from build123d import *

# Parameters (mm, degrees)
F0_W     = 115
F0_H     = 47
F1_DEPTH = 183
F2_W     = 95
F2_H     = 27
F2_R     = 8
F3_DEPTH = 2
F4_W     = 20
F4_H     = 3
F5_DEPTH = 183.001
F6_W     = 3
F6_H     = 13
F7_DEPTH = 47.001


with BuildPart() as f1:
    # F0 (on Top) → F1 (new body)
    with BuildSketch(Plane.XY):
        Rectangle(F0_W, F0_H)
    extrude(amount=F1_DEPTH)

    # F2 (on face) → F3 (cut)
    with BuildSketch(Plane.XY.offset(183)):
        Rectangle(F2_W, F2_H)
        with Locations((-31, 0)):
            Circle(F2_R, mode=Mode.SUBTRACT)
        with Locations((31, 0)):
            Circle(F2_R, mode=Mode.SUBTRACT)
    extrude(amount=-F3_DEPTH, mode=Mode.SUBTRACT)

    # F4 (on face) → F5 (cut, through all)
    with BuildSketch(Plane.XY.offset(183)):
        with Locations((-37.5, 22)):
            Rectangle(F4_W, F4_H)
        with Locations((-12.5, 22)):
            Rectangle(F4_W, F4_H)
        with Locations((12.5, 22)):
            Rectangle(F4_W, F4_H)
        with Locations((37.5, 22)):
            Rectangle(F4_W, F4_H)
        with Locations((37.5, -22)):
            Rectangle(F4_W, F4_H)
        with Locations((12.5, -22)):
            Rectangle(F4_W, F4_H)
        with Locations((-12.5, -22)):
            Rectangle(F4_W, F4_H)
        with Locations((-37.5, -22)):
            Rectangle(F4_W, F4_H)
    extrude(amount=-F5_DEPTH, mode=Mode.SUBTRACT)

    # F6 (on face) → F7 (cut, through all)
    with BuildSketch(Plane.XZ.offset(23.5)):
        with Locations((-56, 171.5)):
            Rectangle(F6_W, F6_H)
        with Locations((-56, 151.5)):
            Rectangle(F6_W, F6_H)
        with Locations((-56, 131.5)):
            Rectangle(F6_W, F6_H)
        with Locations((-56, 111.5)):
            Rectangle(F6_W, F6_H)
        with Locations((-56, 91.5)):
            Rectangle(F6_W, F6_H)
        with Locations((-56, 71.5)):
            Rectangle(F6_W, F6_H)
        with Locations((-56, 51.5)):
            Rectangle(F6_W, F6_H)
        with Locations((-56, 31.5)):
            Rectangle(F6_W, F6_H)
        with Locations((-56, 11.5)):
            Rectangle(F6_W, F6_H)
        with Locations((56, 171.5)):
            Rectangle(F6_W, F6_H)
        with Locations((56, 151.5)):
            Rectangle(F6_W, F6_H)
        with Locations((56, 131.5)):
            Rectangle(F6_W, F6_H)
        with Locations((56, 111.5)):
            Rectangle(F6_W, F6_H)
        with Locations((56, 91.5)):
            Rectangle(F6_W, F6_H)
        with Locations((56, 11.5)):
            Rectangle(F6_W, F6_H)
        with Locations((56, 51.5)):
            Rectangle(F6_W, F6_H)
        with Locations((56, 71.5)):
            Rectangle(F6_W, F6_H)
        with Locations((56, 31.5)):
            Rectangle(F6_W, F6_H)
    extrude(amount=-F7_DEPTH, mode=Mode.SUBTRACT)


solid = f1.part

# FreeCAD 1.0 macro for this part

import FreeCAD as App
import Part
import Sketcher
Q = App.Units.Quantity


def add_polygon(sketch, points):
    """Adds a closed chain of lines whose ends are joined by coincident constraints."""
    first, n = sketch.GeometryCount, len(points)
    for a, b in zip(points, points[1:] + points[:1]):
        sketch.addGeometry(Part.LineSegment(App.Vector(*a, 0), App.Vector(*b, 0)), False)
    for i in range(n):
        sketch.addConstraint(Sketcher.Constraint("Coincident", first + i, 2, first + (i + 1) % n, 1))

doc = App.newDocument("Part")
params = doc.addObject("Spreadsheet::Sheet", "Params")
for row, (alias, value) in enumerate([
    ("sketch1_width", "115 mm"),
    ("sketch1_height", "47 mm"),
    ("pad1_length", "183 mm"),
    ("sketch2_diameter", "16 mm"),
    ("sketch2_width", "95 mm"),
    ("sketch2_height", "27 mm"),
    ("pocket1_length", "2 mm"),
    ("sketch3_width", "20 mm"),
    ("sketch3_height", "3 mm"),
    ("sketch4_width", "3 mm"),
    ("sketch4_height", "13 mm"),
], start=1):
    params.set(f"A{row}", alias)
    params.set(f"B{row}", "=" + value)
    params.setAlias(f"B{row}", alias)

body = doc.addObject("PartDesign::Body", "Body")

# Sketch on XY plane
sketch1 = body.newObject("Sketcher::SketchObject", "Sketch")
sketch1.AttachmentSupport = (doc.getObject("XY_Plane"), [""])
sketch1.MapMode = "FlatFace"
add_polygon(sketch1, [(-58, 24), (-58, -24), (58, -24), (58, 24)])  # lines 0-3
sketch1.addConstraint([
    Sketcher.Constraint("Vertical", 0),
    Sketcher.Constraint("Horizontal", 1),
    Sketcher.Constraint("Vertical", 2),
    Sketcher.Constraint("Horizontal", 3),
    Sketcher.Constraint("Symmetric", 0, 2, 2, 2, -1, 1),
    Sketcher.Constraint("DistanceX", 1, 1, 1, 2, Q("115 mm")),
    Sketcher.Constraint("DistanceY", 0, 2, 0, 1, Q("47 mm")),
])
sketch1.setExpression("Constraints[9]", "Params.sketch1_width")
sketch1.setExpression("Constraints[10]", "Params.sketch1_height")
pad1 = body.newObject("PartDesign::Pad", "Pad")
pad1.Profile = sketch1
pad1.setExpression("Length", "Params.pad1_length")

# Sketch on XY plane
sketch2 = body.newObject("Sketcher::SketchObject", "Sketch001")
sketch2.AttachmentSupport = (doc.getObject("XY_Plane"), [""])
sketch2.MapMode = "FlatFace"
sketch2.AttachmentOffset = App.Placement(App.Vector(0, 0, 183), App.Rotation())
add_polygon(sketch2, [(-48, 14), (-48, -14), (48, -14), (48, 14)])  # lines 0-3
sketch2.addGeometry(Part.Circle(App.Vector(-31, 0, 0), App.Vector(0, 0, 1), 8), False)  # 4
sketch2.addGeometry(Part.Circle(App.Vector(31, 0, 0), App.Vector(0, 0, 1), 8), False)  # 5
sketch2.addConstraint([
    Sketcher.Constraint("Vertical", 0),
    Sketcher.Constraint("Horizontal", 1),
    Sketcher.Constraint("Vertical", 2),
    Sketcher.Constraint("Horizontal", 3),
    Sketcher.Constraint("Equal", 4, 5),
    Sketcher.Constraint("Symmetric", 4, 3, 5, 3, -1, 1),
    Sketcher.Constraint("Symmetric", 0, 2, 2, 2, -1, 1),
    Sketcher.Constraint("PointOnObject", 4, 3, -1),
    Sketcher.Constraint("Diameter", 4, Q("16 mm")),
    Sketcher.Constraint("DistanceX", 1, 1, 1, 2, Q("95 mm")),
    Sketcher.Constraint("DistanceY", 0, 2, 0, 1, Q("27 mm")),
    Sketcher.Constraint("DistanceX", 4, 3, -1, 1, Q("31 mm")),
])
sketch2.setExpression("Constraints[12]", "Params.sketch2_diameter")
sketch2.setExpression("Constraints[13]", "Params.sketch2_width")
sketch2.setExpression("Constraints[14]", "Params.sketch2_height")
pocket1 = body.newObject("PartDesign::Pocket", "Pocket")
pocket1.Profile = sketch2
pocket1.setExpression("Length", "Params.pocket1_length")

# Sketch on XY plane
sketch3 = body.newObject("Sketcher::SketchObject", "Sketch002")
sketch3.AttachmentSupport = (doc.getObject("XY_Plane"), [""])
sketch3.MapMode = "FlatFace"
sketch3.AttachmentOffset = App.Placement(App.Vector(0, 0, 183), App.Rotation())
add_polygon(sketch3, [(-47.5, 23.5), (-47.5, 20.5), (-27.5, 20.5), (-27.5, 23.5)])  # lines 0-3
add_polygon(sketch3, [(-22.5, 23.5), (-22.5, 20.5), (-2.5, 20.5), (-2.5, 23.5)])  # lines 4-7
add_polygon(sketch3, [(2.5, 23.5), (2.5, 20.5), (22.5, 20.5), (22.5, 23.5)])  # lines 8-11
add_polygon(sketch3, [(27.5, 23.5), (27.5, 20.5), (47.5, 20.5), (47.5, 23.5)])  # lines 12-15
add_polygon(sketch3, [(27.5, -20.5), (27.5, -23.5), (47.5, -23.5), (47.5, -20.5)])  # lines 16-19
add_polygon(sketch3, [(2.5, -20.5), (2.5, -23.5), (22.5, -23.5), (22.5, -20.5)])  # lines 20-23
add_polygon(sketch3, [(-22.5, -20.5), (-22.5, -23.5), (-2.5, -23.5), (-2.5, -20.5)])  # lines 24-27
add_polygon(sketch3, [(-47.5, -20.5), (-47.5, -23.5), (-27.5, -23.5), (-27.5, -20.5)])  # lines 28-31
sketch3.addConstraint([
    Sketcher.Constraint("Vertical", 0),
    Sketcher.Constraint("Horizontal", 1),
    Sketcher.Constraint("Vertical", 2),
    Sketcher.Constraint("Horizontal", 3),
    Sketcher.Constraint("Vertical", 4),
    Sketcher.Constraint("Horizontal", 5),
    Sketcher.Constraint("Vertical", 6),
    Sketcher.Constraint("Horizontal", 7),
    Sketcher.Constraint("Vertical", 8),
    Sketcher.Constraint("Horizontal", 9),
    Sketcher.Constraint("Vertical", 10),
    Sketcher.Constraint("Horizontal", 11),
    Sketcher.Constraint("Vertical", 12),
    Sketcher.Constraint("Horizontal", 13),
    Sketcher.Constraint("Vertical", 14),
    Sketcher.Constraint("Horizontal", 15),
    Sketcher.Constraint("Vertical", 16),
    Sketcher.Constraint("Horizontal", 17),
    Sketcher.Constraint("Vertical", 18),
    Sketcher.Constraint("Horizontal", 19),
    Sketcher.Constraint("Vertical", 20),
    Sketcher.Constraint("Horizontal", 21),
    Sketcher.Constraint("Vertical", 22),
    Sketcher.Constraint("Horizontal", 23),
    Sketcher.Constraint("Vertical", 24),
    Sketcher.Constraint("Horizontal", 25),
    Sketcher.Constraint("Vertical", 26),
    Sketcher.Constraint("Horizontal", 27),
    Sketcher.Constraint("Vertical", 28),
    Sketcher.Constraint("Horizontal", 29),
    Sketcher.Constraint("Vertical", 30),
    Sketcher.Constraint("Horizontal", 31),
    Sketcher.Constraint("Symmetric", 2, 2, 16, 2, -1, 1),
    Sketcher.Constraint("Symmetric", 0, 2, 18, 2, -1, 1),
    Sketcher.Constraint("Symmetric", 6, 2, 20, 2, -1, 1),
    Sketcher.Constraint("Symmetric", 4, 2, 22, 2, -1, 1),
    Sketcher.Constraint("Symmetric", 10, 2, 24, 2, -1, 1),
    Sketcher.Constraint("Symmetric", 8, 2, 26, 2, -1, 1),
    Sketcher.Constraint("Symmetric", 14, 2, 28, 2, -1, 1),
    Sketcher.Constraint("Symmetric", 12, 2, 30, 2, -1, 1),
    Sketcher.Constraint("Symmetric", 5, 2, 8, 2, -2),
    Sketcher.Constraint("Symmetric", 7, 2, 10, 2, -2),
    Sketcher.Constraint("Symmetric", 1, 2, 12, 2, -2),
    Sketcher.Constraint("Symmetric", 3, 2, 14, 2, -2),
    Sketcher.Constraint("Horizontal", 1, 2, 4, 2),
    Sketcher.Constraint("Horizontal", 3, 2, 6, 2),
    Sketcher.Constraint("Equal", 3, 5),
    Sketcher.Constraint("DistanceX", 1, 1, 1, 2, Q("20 mm")),
    Sketcher.Constraint("DistanceY", 0, 2, 0, 1, Q("3 mm")),
    Sketcher.Constraint("DistanceX", 1, 2, 4, 2, Q("5 mm")),
    Sketcher.Constraint("DistanceX", 5, 2, 8, 2, Q("5 mm")),
    Sketcher.Constraint("DistanceY", 16, 2, 12, 2, Q("44 mm")),
])
sketch3.setExpression("Constraints[79]", "Params.sketch3_width")
sketch3.setExpression("Constraints[80]", "Params.sketch3_height")
pocket2 = body.newObject("PartDesign::Pocket", "Pocket001")
pocket2.Profile = sketch3
pocket2.Type = "ThroughAll"

# Sketch on XZ plane
sketch4 = body.newObject("Sketcher::SketchObject", "Sketch003")
sketch4.AttachmentSupport = (doc.getObject("XZ_Plane"), [""])
sketch4.MapMode = "FlatFace"
sketch4.AttachmentOffset = App.Placement(App.Vector(0, 0, 23.5), App.Rotation())
add_polygon(sketch4, [(-57.5, 178), (-57.5, 165), (-54.5, 165), (-54.5, 178)])  # lines 0-3
add_polygon(sketch4, [(-57.5, 158), (-57.5, 145), (-54.5, 145), (-54.5, 158)])  # lines 4-7
add_polygon(sketch4, [(-57.5, 138), (-57.5, 125), (-54.5, 125), (-54.5, 138)])  # lines 8-11
add_polygon(sketch4, [(-57.5, 118), (-57.5, 105), (-54.5, 105), (-54.5, 118)])  # lines 12-15
add_polygon(sketch4, [(-57.5, 98), (-57.5, 85), (-54.5, 85), (-54.5, 98)])  # lines 16-19
add_polygon(sketch4, [(-57.5, 78), (-57.5, 65), (-54.5, 65), (-54.5, 78)])  # lines 20-23
add_polygon(sketch4, [(-57.5, 58), (-57.5, 45), (-54.5, 45), (-54.5, 58)])  # lines 24-27
add_polygon(sketch4, [(-57.5, 38), (-57.5, 25), (-54.5, 25), (-54.5, 38)])  # lines 28-31
add_polygon(sketch4, [(-57.5, 18), (-57.5, 5), (-54.5, 5), (-54.5, 18)])  # lines 32-35
add_polygon(sketch4, [(54.5, 178), (54.5, 165), (57.5, 165), (57.5, 178)])  # lines 36-39
add_polygon(sketch4, [(54.5, 158), (54.5, 145), (57.5, 145), (57.5, 158)])  # lines 40-43
add_polygon(sketch4, [(54.5, 138), (54.5, 125), (57.5, 125), (57.5, 138)])  # lines 44-47
add_polygon(sketch4, [(54.5, 118), (54.5, 105), (57.5, 105), (57.5, 118)])  # lines 48-51
add_polygon(sketch4, [(54.5, 98), (54.5, 85), (57.5, 85), (57.5, 98)])  # lines 52-55
add_polygon(sketch4, [(54.5, 18), (54.5, 5), (57.5, 5), (57.5, 18)])  # lines 56-59
add_polygon(sketch4, [(54.5, 58), (54.5, 45), (57.5, 45), (57.5, 58)])  # lines 60-63
add_polygon(sketch4, [(54.5, 78), (54.5, 65), (57.5, 65), (57.5, 78)])  # lines 64-67
add_polygon(sketch4, [(54.5, 38), (54.5, 25), (57.5, 25), (57.5, 38)])  # lines 68-71
sketch4.addConstraint([
    Sketcher.Constraint("Vertical", 0),
    Sketcher.Constraint("Horizontal", 1),
    Sketcher.Constraint("Vertical", 2),
    Sketcher.Constraint("Horizontal", 3),
    Sketcher.Constraint("Vertical", 4),
    Sketcher.Constraint("Horizontal", 5),
    Sketcher.Constraint("Vertical", 6),
    Sketcher.Constraint("Horizontal", 7),
    Sketcher.Constraint("Vertical", 8),
    Sketcher.Constraint("Horizontal", 9),
    Sketcher.Constraint("Vertical", 10),
    Sketcher.Constraint("Horizontal", 11),
    Sketcher.Constraint("Vertical", 12),
    Sketcher.Constraint("Horizontal", 13),
    Sketcher.Constraint("Vertical", 14),
    Sketcher.Constraint("Horizontal", 15),
    Sketcher.Constraint("Vertical", 16),
    Sketcher.Constraint("Horizontal", 17),
    Sketcher.Constraint("Vertical", 18),
    Sketcher.Constraint("Horizontal", 19),
    Sketcher.Constraint("Vertical", 20),
    Sketcher.Constraint("Horizontal", 21),
    Sketcher.Constraint("Vertical", 22),
    Sketcher.Constraint("Horizontal", 23),
    Sketcher.Constraint("Vertical", 24),
    Sketcher.Constraint("Horizontal", 25),
    Sketcher.Constraint("Vertical", 26),
    Sketcher.Constraint("Horizontal", 27),
    Sketcher.Constraint("Vertical", 28),
    Sketcher.Constraint("Horizontal", 29),
    Sketcher.Constraint("Vertical", 30),
    Sketcher.Constraint("Horizontal", 31),
    Sketcher.Constraint("Vertical", 32),
    Sketcher.Constraint("Horizontal", 33),
    Sketcher.Constraint("Vertical", 34),
    Sketcher.Constraint("Horizontal", 35),
    Sketcher.Constraint("Vertical", 36),
    Sketcher.Constraint("Horizontal", 37),
    Sketcher.Constraint("Vertical", 38),
    Sketcher.Constraint("Horizontal", 39),
    Sketcher.Constraint("Vertical", 40),
    Sketcher.Constraint("Horizontal", 41),
    Sketcher.Constraint("Vertical", 42),
    Sketcher.Constraint("Horizontal", 43),
    Sketcher.Constraint("Vertical", 44),
    Sketcher.Constraint("Horizontal", 45),
    Sketcher.Constraint("Vertical", 46),
    Sketcher.Constraint("Horizontal", 47),
    Sketcher.Constraint("Vertical", 48),
    Sketcher.Constraint("Horizontal", 49),
    Sketcher.Constraint("Vertical", 50),
    Sketcher.Constraint("Horizontal", 51),
    Sketcher.Constraint("Vertical", 52),
    Sketcher.Constraint("Horizontal", 53),
    Sketcher.Constraint("Vertical", 54),
    Sketcher.Constraint("Horizontal", 55),
    Sketcher.Constraint("Vertical", 56),
    Sketcher.Constraint("Horizontal", 57),
    Sketcher.Constraint("Vertical", 58),
    Sketcher.Constraint("Horizontal", 59),
    Sketcher.Constraint("Vertical", 60),
    Sketcher.Constraint("Horizontal", 61),
    Sketcher.Constraint("Vertical", 62),
    Sketcher.Constraint("Horizontal", 63),
    Sketcher.Constraint("Vertical", 64),
    Sketcher.Constraint("Horizontal", 65),
    Sketcher.Constraint("Vertical", 66),
    Sketcher.Constraint("Horizontal", 67),
    Sketcher.Constraint("Vertical", 68),
    Sketcher.Constraint("Horizontal", 69),
    Sketcher.Constraint("Vertical", 70),
    Sketcher.Constraint("Horizontal", 71),
    Sketcher.Constraint("Symmetric", 1, 2, 36, 2, -2),
    Sketcher.Constraint("Symmetric", 3, 2, 38, 2, -2),
    Sketcher.Constraint("Symmetric", 5, 2, 40, 2, -2),
    Sketcher.Constraint("Symmetric", 7, 2, 42, 2, -2),
    Sketcher.Constraint("Symmetric", 9, 2, 44, 2, -2),
    Sketcher.Constraint("Symmetric", 11, 2, 46, 2, -2),
    Sketcher.Constraint("Symmetric", 13, 2, 48, 2, -2),
    Sketcher.Constraint("Symmetric", 15, 2, 50, 2, -2),
    Sketcher.Constraint("Symmetric", 17, 2, 52, 2, -2),
    Sketcher.Constraint("Symmetric", 19, 2, 54, 2, -2),
    Sketcher.Constraint("Symmetric", 33, 2, 56, 2, -2),
    Sketcher.Constraint("Symmetric", 35, 2, 58, 2, -2),
    Sketcher.Constraint("Symmetric", 25, 2, 60, 2, -2),
    Sketcher.Constraint("Symmetric", 27, 2, 62, 2, -2),
    Sketcher.Constraint("Symmetric", 21, 2, 64, 2, -2),
    Sketcher.Constraint("Symmetric", 23, 2, 66, 2, -2),
    Sketcher.Constraint("Symmetric", 29, 2, 68, 2, -2),
    Sketcher.Constraint("Symmetric", 31, 2, 70, 2, -2),
    Sketcher.Constraint("Vertical", 3, 2, 4, 2),
    Sketcher.Constraint("Vertical", 2, 2, 5, 2),
    Sketcher.Constraint("Vertical", 7, 2, 8, 2),
    Sketcher.Constraint("Vertical", 6, 2, 9, 2),
    Sketcher.Constraint("Vertical", 11, 2, 12, 2),
    Sketcher.Constraint("Vertical", 10, 2, 13, 2),
    Sketcher.Constraint("Vertical", 15, 2, 16, 2),
    Sketcher.Constraint("Vertical", 14, 2, 17, 2),
    Sketcher.Constraint("Vertical", 19, 2, 20, 2),
    Sketcher.Constraint("Vertical", 18, 2, 21, 2),
    Sketcher.Constraint("Vertical", 23, 2, 24, 2),
    Sketcher.Constraint("Vertical", 22, 2, 25, 2),
    Sketcher.Constraint("Vertical", 27, 2, 28, 2),
    Sketcher.Constraint("Vertical", 26, 2, 29, 2),
    Sketcher.Constraint("Vertical", 31, 2, 32, 2),
    Sketcher.Constraint("Vertical", 30, 2, 33, 2),
    Sketcher.Constraint("Equal", 2, 4),
    Sketcher.Constraint("Equal", 6, 8),
    Sketcher.Constraint("Equal", 10, 12),
    Sketcher.Constraint("Equal", 14, 16),
    Sketcher.Constraint("Equal", 18, 20),
    Sketcher.Constraint("Equal", 22, 24),
    Sketcher.Constraint("Equal", 26, 28),
    Sketcher.Constraint("Equal", 30, 32),
    Sketcher.Constraint("DistanceX", 1, 1, 1, 2, Q("3 mm")),
    Sketcher.Constraint("DistanceY", 0, 2, 0, 1, Q("13 mm")),
    Sketcher.Constraint("DistanceY", -1, 1, 0, 2, Q("165 mm")),
    Sketcher.Constraint("DistanceY", -1, 1, 4, 2, Q("145 mm")),
    Sketcher.Constraint("DistanceY", -1, 1, 8, 2, Q("125 mm")),
    Sketcher.Constraint("DistanceY", -1, 1, 12, 2, Q("105 mm")),
    Sketcher.Constraint("DistanceY", -1, 1, 16, 2, Q("85 mm")),
    Sketcher.Constraint("DistanceY", -1, 1, 20, 2, Q("65 mm")),
    Sketcher.Constraint("DistanceY", -1, 1, 24, 2, Q("45 mm")),
    Sketcher.Constraint("DistanceY", -1, 1, 28, 2, Q("25 mm")),
    Sketcher.Constraint("DistanceY", -1, 1, 32, 2, Q("5 mm")),
    Sketcher.Constraint("DistanceX", 0, 2, -1, 1, Q("57.5 mm")),
])
sketch4.setExpression("Constraints[186]", "Params.sketch4_width")
sketch4.setExpression("Constraints[187]", "Params.sketch4_height")
pocket3 = body.newObject("PartDesign::Pocket", "Pocket002")
pocket3.Profile = sketch4
pocket3.Type = "ThroughAll"

doc.recompute()
